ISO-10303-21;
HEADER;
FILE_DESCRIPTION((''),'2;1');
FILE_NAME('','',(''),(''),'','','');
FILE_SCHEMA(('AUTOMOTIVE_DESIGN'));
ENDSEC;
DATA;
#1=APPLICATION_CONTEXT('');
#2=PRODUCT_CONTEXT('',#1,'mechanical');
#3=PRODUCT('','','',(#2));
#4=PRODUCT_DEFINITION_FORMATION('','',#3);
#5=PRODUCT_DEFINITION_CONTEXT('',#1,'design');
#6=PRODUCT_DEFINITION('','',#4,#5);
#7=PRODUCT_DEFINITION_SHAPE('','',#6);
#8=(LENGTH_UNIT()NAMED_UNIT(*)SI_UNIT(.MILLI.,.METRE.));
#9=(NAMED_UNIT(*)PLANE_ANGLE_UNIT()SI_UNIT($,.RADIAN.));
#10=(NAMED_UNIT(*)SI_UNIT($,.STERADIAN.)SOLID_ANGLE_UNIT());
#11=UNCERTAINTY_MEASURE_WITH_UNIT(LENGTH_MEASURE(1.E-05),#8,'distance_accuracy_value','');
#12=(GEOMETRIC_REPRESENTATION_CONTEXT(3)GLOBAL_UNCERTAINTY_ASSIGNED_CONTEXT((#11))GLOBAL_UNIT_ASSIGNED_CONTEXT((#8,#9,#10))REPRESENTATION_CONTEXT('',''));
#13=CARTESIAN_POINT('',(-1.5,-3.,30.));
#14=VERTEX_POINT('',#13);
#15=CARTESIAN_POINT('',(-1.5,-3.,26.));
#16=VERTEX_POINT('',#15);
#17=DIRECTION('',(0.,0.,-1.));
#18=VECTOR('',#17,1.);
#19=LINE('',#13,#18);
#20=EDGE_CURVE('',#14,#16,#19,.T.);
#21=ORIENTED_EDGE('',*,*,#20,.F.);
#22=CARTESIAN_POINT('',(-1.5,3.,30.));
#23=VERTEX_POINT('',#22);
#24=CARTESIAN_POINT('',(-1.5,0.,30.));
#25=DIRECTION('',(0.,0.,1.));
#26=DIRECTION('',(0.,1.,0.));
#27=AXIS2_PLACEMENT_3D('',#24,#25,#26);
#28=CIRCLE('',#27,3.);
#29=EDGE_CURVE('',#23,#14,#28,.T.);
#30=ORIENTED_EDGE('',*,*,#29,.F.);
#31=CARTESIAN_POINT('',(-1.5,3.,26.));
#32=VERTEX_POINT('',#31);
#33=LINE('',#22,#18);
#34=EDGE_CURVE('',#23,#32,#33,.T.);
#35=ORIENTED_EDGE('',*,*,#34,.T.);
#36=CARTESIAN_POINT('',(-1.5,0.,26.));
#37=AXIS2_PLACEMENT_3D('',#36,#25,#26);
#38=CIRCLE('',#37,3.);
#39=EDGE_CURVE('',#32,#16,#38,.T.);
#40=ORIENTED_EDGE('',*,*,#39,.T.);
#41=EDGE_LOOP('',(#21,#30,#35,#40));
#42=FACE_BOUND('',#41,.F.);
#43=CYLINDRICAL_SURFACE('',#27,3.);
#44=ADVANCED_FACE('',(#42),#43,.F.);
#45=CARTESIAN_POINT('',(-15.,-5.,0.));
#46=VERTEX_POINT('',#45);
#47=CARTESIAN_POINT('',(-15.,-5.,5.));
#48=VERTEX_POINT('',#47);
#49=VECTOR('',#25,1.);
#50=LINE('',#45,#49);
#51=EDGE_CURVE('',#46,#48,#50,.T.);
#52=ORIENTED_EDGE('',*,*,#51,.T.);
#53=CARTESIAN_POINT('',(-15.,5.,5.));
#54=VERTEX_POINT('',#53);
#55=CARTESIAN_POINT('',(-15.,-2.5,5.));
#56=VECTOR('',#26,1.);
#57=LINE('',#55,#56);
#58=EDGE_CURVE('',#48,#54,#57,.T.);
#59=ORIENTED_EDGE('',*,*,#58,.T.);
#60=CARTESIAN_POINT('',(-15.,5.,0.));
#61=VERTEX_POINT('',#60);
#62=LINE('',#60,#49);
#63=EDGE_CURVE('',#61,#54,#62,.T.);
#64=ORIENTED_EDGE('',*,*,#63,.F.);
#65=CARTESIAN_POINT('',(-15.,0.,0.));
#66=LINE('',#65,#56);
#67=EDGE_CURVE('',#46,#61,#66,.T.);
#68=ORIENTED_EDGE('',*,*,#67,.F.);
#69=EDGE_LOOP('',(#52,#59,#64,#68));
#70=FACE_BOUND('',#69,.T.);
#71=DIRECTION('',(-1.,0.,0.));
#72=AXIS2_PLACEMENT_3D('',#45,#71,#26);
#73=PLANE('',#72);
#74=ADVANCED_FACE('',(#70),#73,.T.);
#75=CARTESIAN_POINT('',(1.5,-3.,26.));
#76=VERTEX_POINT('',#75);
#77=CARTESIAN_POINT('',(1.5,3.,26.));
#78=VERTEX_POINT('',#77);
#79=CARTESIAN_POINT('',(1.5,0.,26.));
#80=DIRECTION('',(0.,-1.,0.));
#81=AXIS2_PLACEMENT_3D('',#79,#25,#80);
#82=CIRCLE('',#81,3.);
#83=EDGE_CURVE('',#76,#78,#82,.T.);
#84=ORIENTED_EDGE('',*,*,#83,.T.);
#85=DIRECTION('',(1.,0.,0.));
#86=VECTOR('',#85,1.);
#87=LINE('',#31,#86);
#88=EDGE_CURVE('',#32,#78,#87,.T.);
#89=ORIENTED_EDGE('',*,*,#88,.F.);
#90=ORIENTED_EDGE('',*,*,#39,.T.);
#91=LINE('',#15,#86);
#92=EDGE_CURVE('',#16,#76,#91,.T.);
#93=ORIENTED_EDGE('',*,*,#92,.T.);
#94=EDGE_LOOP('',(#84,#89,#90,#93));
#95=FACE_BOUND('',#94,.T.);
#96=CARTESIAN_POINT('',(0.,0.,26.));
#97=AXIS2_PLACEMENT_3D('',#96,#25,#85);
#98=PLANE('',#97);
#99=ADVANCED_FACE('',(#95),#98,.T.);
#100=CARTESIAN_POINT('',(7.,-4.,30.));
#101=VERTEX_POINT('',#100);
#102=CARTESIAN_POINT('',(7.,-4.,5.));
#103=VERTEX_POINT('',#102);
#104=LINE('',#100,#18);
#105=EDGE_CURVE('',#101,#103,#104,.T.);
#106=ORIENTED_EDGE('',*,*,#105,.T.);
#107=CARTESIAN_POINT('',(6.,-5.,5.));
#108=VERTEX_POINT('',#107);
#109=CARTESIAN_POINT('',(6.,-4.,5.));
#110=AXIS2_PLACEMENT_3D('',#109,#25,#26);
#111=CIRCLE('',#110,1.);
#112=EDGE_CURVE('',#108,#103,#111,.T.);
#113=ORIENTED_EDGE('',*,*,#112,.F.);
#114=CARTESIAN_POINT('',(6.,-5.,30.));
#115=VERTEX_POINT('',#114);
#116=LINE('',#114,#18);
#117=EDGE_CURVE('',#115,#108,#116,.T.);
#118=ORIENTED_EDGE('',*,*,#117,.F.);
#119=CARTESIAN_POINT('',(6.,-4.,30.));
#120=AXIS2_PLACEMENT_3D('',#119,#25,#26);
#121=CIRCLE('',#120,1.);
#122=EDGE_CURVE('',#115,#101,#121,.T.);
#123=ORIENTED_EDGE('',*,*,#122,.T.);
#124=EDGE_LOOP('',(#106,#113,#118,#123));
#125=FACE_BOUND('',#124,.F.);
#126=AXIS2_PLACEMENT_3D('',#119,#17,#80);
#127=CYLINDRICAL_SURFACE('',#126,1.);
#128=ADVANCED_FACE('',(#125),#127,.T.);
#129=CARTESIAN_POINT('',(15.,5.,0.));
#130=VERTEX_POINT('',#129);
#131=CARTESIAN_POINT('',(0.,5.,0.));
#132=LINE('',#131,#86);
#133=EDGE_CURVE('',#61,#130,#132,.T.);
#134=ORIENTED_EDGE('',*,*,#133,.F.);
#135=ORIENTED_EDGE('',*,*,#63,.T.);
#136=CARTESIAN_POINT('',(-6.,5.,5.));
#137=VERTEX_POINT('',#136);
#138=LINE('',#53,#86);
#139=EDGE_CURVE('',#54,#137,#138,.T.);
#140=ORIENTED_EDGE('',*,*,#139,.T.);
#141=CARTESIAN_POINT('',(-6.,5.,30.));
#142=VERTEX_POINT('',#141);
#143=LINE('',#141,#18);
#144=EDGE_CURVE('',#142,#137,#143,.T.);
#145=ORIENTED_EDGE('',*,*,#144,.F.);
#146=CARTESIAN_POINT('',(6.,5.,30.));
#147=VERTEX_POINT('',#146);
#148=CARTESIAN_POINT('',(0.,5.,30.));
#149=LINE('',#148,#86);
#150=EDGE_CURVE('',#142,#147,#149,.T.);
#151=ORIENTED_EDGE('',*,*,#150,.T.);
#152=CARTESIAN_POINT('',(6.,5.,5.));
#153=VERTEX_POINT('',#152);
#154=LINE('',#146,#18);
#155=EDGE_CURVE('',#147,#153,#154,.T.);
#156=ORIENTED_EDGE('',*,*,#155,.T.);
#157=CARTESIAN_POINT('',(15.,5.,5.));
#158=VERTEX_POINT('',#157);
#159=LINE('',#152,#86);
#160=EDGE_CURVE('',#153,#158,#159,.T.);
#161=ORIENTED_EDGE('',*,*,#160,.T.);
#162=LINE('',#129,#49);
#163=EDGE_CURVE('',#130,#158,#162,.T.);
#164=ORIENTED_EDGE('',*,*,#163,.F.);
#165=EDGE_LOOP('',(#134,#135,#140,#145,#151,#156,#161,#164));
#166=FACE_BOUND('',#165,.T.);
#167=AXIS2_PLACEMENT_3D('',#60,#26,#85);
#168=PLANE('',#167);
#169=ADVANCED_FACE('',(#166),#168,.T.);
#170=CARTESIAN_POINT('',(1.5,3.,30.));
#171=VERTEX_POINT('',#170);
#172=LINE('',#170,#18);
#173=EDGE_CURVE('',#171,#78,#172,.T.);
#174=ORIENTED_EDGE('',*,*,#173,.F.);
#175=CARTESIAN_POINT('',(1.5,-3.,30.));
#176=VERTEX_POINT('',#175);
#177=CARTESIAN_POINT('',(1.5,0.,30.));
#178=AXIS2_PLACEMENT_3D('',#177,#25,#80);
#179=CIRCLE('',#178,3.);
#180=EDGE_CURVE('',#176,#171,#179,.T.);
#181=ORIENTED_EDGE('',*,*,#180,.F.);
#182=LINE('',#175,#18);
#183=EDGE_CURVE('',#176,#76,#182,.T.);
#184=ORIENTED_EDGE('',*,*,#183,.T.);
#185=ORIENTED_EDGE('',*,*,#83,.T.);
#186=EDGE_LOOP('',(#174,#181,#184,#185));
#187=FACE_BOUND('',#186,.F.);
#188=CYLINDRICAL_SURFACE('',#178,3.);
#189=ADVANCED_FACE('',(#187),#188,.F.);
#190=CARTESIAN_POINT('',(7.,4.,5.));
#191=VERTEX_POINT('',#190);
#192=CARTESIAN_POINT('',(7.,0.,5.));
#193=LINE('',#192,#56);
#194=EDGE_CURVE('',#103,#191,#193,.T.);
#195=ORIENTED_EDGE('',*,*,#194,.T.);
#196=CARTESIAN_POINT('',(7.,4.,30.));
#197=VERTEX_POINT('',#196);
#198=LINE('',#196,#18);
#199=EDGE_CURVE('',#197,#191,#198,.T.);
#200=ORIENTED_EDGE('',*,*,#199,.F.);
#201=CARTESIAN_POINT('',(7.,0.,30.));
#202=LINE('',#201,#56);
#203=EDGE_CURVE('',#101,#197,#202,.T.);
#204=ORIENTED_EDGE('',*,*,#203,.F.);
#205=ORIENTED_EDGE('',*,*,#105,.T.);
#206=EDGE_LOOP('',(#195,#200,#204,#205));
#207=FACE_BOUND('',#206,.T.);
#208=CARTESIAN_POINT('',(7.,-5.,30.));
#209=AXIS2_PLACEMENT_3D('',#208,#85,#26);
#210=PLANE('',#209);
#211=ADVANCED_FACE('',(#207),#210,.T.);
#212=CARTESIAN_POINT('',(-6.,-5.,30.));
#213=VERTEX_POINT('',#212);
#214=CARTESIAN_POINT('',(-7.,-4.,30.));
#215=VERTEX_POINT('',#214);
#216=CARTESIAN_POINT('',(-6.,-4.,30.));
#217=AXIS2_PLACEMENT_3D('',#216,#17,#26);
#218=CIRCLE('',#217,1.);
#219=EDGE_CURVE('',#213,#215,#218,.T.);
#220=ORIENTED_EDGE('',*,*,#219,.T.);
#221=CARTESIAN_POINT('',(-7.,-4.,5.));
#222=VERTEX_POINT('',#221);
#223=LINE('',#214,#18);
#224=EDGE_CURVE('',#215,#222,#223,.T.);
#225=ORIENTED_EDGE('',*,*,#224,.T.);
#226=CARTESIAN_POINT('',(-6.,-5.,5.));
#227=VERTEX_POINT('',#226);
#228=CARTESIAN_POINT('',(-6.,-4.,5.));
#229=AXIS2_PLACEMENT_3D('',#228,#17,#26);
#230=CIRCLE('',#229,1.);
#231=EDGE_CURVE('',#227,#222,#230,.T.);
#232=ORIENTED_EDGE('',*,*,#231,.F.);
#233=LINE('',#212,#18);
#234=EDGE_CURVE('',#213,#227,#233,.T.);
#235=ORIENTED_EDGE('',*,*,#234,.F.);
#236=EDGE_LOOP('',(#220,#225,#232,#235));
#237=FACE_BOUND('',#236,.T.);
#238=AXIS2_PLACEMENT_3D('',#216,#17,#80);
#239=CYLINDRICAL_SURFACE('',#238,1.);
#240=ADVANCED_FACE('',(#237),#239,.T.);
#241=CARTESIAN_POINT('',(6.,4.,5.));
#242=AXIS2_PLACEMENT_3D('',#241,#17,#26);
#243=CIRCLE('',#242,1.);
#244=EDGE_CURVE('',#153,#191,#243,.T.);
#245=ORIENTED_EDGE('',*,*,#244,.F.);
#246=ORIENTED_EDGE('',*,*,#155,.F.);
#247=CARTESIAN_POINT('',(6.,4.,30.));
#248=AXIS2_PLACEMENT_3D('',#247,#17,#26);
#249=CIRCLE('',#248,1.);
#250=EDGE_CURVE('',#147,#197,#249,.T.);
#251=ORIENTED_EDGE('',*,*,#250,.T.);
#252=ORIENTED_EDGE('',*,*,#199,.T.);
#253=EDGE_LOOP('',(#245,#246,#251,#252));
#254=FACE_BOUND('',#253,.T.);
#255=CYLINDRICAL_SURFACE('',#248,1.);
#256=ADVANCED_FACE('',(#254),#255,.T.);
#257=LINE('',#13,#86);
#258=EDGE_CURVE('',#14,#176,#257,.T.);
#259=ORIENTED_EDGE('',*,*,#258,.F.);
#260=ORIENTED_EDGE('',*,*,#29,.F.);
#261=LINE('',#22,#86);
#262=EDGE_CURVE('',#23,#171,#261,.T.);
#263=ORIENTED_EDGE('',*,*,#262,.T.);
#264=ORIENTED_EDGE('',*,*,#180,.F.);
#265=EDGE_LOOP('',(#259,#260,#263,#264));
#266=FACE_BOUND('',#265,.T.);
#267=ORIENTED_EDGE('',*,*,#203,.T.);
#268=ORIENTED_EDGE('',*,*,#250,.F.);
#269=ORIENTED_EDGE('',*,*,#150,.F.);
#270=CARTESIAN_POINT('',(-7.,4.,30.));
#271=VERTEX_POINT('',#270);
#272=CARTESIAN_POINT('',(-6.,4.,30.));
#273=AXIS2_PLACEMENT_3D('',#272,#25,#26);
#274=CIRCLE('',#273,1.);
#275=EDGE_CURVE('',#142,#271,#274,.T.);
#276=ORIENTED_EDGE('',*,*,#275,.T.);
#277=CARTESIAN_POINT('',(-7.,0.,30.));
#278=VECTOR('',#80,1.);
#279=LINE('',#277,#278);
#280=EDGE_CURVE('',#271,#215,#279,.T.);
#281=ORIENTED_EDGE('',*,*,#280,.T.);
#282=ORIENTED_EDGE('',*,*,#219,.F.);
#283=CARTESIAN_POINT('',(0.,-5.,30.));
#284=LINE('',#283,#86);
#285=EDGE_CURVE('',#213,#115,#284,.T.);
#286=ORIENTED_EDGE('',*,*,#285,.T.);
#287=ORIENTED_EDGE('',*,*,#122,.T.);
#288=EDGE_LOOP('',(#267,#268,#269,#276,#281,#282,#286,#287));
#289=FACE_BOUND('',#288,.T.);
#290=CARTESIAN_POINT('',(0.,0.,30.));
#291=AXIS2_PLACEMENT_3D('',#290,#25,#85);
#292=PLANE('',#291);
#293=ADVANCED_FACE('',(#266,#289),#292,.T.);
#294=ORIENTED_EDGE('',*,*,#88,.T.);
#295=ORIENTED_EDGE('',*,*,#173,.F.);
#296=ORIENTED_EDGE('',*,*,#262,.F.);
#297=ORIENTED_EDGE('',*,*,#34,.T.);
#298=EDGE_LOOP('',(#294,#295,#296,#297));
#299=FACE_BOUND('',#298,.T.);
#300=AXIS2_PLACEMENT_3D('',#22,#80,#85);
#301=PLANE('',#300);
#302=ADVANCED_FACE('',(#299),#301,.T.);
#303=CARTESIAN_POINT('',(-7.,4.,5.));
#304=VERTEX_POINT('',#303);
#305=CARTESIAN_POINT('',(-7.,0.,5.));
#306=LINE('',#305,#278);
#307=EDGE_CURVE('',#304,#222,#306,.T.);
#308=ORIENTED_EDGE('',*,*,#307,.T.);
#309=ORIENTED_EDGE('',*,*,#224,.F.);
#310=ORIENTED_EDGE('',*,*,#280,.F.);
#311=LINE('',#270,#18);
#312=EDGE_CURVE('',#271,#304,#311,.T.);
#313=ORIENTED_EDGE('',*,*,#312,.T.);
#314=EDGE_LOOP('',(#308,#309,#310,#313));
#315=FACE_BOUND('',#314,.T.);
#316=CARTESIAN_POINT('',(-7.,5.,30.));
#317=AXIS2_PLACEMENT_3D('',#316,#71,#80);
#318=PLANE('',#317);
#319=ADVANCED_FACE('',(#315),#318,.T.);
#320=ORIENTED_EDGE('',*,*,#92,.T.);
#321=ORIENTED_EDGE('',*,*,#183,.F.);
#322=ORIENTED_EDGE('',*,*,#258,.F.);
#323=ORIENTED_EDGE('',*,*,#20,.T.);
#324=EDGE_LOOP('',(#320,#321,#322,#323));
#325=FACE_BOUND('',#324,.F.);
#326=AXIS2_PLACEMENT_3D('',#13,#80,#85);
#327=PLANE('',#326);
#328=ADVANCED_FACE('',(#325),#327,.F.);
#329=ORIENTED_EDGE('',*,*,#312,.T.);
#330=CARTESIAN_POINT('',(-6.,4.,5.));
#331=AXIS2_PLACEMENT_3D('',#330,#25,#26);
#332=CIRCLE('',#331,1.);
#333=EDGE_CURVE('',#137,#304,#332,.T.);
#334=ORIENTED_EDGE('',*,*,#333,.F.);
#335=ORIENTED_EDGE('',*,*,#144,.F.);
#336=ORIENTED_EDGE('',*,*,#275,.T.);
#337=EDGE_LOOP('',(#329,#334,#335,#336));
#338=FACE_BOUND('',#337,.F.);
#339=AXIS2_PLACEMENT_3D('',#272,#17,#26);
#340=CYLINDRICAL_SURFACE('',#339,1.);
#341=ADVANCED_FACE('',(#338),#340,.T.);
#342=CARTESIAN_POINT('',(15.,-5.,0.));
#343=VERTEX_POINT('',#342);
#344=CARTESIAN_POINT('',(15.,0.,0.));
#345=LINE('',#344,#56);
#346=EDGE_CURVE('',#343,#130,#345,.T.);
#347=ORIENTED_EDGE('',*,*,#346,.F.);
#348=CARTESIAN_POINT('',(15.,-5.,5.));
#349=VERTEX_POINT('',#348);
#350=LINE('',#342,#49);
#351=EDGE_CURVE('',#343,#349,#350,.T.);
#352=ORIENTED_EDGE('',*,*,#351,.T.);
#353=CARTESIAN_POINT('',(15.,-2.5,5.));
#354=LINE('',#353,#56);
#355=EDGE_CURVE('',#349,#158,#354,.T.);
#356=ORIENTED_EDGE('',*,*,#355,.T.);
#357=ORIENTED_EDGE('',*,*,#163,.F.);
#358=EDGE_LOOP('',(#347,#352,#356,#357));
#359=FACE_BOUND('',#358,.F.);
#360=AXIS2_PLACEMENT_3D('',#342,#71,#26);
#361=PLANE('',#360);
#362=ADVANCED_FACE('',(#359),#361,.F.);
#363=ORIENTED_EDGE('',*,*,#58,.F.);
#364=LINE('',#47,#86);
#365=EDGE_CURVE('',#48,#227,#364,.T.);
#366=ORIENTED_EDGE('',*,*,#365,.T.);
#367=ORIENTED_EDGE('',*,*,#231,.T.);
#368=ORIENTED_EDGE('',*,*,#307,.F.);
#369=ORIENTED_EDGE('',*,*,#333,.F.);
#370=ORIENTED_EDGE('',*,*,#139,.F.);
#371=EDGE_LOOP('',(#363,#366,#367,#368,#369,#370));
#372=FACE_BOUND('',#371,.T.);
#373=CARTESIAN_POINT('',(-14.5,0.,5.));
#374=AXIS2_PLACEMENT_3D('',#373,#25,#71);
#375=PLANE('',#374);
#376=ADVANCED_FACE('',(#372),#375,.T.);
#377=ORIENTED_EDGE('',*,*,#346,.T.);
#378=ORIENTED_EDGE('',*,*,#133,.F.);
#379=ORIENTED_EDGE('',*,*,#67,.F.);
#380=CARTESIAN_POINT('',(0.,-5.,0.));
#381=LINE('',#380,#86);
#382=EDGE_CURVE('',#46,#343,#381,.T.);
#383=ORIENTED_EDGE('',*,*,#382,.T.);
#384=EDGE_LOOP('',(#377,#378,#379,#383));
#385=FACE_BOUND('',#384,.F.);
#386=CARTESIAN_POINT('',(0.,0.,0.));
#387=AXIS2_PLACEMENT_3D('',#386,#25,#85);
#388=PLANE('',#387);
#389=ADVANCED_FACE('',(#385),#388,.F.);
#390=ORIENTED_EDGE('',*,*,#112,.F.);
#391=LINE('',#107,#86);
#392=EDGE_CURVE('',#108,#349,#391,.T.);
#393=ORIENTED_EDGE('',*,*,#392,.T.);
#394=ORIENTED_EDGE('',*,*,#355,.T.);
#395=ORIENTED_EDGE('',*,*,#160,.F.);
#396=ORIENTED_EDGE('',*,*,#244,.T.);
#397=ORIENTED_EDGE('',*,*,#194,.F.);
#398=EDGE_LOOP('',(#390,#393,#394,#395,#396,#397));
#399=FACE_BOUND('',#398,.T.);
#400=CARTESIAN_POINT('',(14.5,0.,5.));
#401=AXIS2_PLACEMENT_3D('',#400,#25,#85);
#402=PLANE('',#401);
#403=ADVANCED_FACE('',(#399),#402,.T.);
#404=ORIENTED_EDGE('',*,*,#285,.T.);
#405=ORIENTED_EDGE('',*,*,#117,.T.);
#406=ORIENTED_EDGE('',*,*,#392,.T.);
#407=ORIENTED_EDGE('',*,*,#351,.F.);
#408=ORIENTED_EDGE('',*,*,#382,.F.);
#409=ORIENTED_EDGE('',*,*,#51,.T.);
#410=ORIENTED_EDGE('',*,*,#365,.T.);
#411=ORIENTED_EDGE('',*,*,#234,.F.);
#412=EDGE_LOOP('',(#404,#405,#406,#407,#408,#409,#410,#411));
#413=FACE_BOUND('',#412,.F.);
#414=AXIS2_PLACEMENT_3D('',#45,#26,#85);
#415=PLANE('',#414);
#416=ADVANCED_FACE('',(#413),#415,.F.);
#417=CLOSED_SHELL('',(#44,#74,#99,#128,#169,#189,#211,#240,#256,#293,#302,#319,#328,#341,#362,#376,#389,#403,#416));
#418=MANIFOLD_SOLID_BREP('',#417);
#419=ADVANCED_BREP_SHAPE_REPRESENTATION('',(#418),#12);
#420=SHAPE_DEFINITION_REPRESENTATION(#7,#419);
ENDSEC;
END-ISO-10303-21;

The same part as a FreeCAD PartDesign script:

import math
import FreeCAD as App
import Part
import Sketcher

V = App.Vector


def edges_at(feature, points):
    """Names of the edges that pass closest to the given points."""
    edges = feature.Shape.Edges
    near = lambda p: min(range(len(edges)), key=lambda i: edges[i].distToShape(Part.Vertex(*p))[0])
    return sorted({f"Edge{near(p) + 1}" for p in points})

doc = App.newDocument("Part")
body = doc.addObject("PartDesign::Body", "Body")

# Sketch on XY plane
sketch1 = body.newObject("Sketcher::SketchObject", "Sketch")
sketch1.AttachmentSupport = (doc.getObject("XY_Plane"), [""])
sketch1.MapMode = "FlatFace"
sketch1.addGeometry([
    Part.LineSegment(V(-15, 5, 0), V(-15, -5, 0)),
    Part.LineSegment(V(-15, -5, 0), V(15, -5, 0)),
    Part.LineSegment(V(15, -5, 0), V(15, 5, 0)),
    Part.LineSegment(V(15, 5, 0), V(-15, 5, 0)),
], False)
sketch1.addConstraint([
    Sketcher.Constraint("Coincident", 0, 2, 1, 1),
    Sketcher.Constraint("Coincident", 1, 2, 2, 1),
    Sketcher.Constraint("Coincident", 2, 2, 3, 1),
    Sketcher.Constraint("Coincident", 3, 2, 0, 1),
    Sketcher.Constraint("Vertical", 0),
    Sketcher.Constraint("Horizontal", 1),
    Sketcher.Constraint("Vertical", 2),
    Sketcher.Constraint("Horizontal", 3),
    Sketcher.Constraint("Symmetric", 0, 2, 2, 2, -1, 1),
    Sketcher.Constraint("DistanceX", 1, 1, 1, 2, 30.0),
    Sketcher.Constraint("DistanceY", 0, 2, 0, 1, 10.0),
])
pad1 = body.newObject("PartDesign::Pad", "Pad")
pad1.Profile = sketch1
pad1.Length = 30

# Sketch on XY plane
sketch2 = body.newObject("Sketcher::SketchObject", "Sketch001")
sketch2.AttachmentSupport = (doc.getObject("XY_Plane"), [""])
sketch2.MapMode = "FlatFace"
sketch2.AttachmentOffset = App.Placement(V(0, 0, 30), App.Rotation())
sketch2.addGeometry([
    Part.ArcOfCircle(Part.Circle(V(-1.5, 0, 0), V(0, 0, 1), 3), math.radians(90), math.radians(270)),
    Part.LineSegment(V(-1.5, -3, 0), V(1.5, -3, 0)),
    Part.ArcOfCircle(Part.Circle(V(1.5, 0, 0), V(0, 0, 1), 3), math.radians(-90), math.radians(90)),
    Part.LineSegment(V(1.5, 3, 0), V(-1.5, 3, 0)),
], False)
sketch2.addConstraint([
    Sketcher.Constraint("Tangent", 0, 2, 1, 1),
    Sketcher.Constraint("Tangent", 1, 2, 2, 1),
    Sketcher.Constraint("Tangent", 2, 2, 3, 1),
    Sketcher.Constraint("Tangent", 3, 2, 0, 1),
    Sketcher.Constraint("Horizontal", 1),
    Sketcher.Constraint("Horizontal", 3),
    Sketcher.Constraint("Symmetric", 0, 3, 2, 3, -1, 1),
    Sketcher.Constraint("Radius", 0, 3.0),
    Sketcher.Constraint("DistanceX", 1, 1, 1, 2, 3.0),
])
pocket1 = body.newObject("PartDesign::Pocket", "Pocket")
pocket1.Profile = sketch2
pocket1.Length = 4

# Sketch on XY plane
sketch3 = body.newObject("Sketcher::SketchObject", "Sketch002")
sketch3.AttachmentSupport = (doc.getObject("XY_Plane"), [""])
sketch3.MapMode = "FlatFace"
sketch3.AttachmentOffset = App.Placement(V(0, 0, 30), App.Rotation())
sketch3.addGeometry([
    Part.LineSegment(V(7, 5, 0), V(7, -5, 0)),
    Part.LineSegment(V(7, -5, 0), V(22, -5, 0)),
    Part.LineSegment(V(22, -5, 0), V(22, 5, 0)),
    Part.LineSegment(V(22, 5, 0), V(7, 5, 0)),
], False)
sketch3.addConstraint([
    Sketcher.Constraint("Coincident", 0, 2, 1, 1),
    Sketcher.Constraint("Coincident", 1, 2, 2, 1),
    Sketcher.Constraint("Coincident", 2, 2, 3, 1),
    Sketcher.Constraint("Coincident", 3, 2, 0, 1),
    Sketcher.Constraint("Vertical", 0),
    Sketcher.Constraint("Horizontal", 1),
    Sketcher.Constraint("Vertical", 2),
    Sketcher.Constraint("Horizontal", 3),
    Sketcher.Constraint("DistanceX", 1, 1, 1, 2, 15.0),
    Sketcher.Constraint("DistanceY", 0, 2, 0, 1, 10.0),
    Sketcher.Constraint("DistanceX", -1, 1, 0, 2, 7.0),
    Sketcher.Constraint("DistanceY", 0, 2, -1, 1, 5.0),
])
pocket2 = body.newObject("PartDesign::Pocket", "Pocket001")
pocket2.Profile = sketch3
pocket2.Length = 25
doc.recompute()

polarpattern = body.newObject("PartDesign::PolarPattern", "PolarPattern")
polarpattern.Originals = [pocket2]
polarpattern.Axis = (doc.getObject("Z_Axis"), [""])
polarpattern.Angle = 360
polarpattern.Occurrences = 2
body.Tip = polarpattern
doc.recompute()

fillet = body.newObject("PartDesign::Fillet", "Fillet")
fillet.Base = (polarpattern, edges_at(polarpattern, [
    (-7, 5, 17.5),
    (-7, -5, 17.5),
    (7, -5, 17.5),
    (7, 5, 17.5),
]))
fillet.Radius = 1

doc.recompute()
